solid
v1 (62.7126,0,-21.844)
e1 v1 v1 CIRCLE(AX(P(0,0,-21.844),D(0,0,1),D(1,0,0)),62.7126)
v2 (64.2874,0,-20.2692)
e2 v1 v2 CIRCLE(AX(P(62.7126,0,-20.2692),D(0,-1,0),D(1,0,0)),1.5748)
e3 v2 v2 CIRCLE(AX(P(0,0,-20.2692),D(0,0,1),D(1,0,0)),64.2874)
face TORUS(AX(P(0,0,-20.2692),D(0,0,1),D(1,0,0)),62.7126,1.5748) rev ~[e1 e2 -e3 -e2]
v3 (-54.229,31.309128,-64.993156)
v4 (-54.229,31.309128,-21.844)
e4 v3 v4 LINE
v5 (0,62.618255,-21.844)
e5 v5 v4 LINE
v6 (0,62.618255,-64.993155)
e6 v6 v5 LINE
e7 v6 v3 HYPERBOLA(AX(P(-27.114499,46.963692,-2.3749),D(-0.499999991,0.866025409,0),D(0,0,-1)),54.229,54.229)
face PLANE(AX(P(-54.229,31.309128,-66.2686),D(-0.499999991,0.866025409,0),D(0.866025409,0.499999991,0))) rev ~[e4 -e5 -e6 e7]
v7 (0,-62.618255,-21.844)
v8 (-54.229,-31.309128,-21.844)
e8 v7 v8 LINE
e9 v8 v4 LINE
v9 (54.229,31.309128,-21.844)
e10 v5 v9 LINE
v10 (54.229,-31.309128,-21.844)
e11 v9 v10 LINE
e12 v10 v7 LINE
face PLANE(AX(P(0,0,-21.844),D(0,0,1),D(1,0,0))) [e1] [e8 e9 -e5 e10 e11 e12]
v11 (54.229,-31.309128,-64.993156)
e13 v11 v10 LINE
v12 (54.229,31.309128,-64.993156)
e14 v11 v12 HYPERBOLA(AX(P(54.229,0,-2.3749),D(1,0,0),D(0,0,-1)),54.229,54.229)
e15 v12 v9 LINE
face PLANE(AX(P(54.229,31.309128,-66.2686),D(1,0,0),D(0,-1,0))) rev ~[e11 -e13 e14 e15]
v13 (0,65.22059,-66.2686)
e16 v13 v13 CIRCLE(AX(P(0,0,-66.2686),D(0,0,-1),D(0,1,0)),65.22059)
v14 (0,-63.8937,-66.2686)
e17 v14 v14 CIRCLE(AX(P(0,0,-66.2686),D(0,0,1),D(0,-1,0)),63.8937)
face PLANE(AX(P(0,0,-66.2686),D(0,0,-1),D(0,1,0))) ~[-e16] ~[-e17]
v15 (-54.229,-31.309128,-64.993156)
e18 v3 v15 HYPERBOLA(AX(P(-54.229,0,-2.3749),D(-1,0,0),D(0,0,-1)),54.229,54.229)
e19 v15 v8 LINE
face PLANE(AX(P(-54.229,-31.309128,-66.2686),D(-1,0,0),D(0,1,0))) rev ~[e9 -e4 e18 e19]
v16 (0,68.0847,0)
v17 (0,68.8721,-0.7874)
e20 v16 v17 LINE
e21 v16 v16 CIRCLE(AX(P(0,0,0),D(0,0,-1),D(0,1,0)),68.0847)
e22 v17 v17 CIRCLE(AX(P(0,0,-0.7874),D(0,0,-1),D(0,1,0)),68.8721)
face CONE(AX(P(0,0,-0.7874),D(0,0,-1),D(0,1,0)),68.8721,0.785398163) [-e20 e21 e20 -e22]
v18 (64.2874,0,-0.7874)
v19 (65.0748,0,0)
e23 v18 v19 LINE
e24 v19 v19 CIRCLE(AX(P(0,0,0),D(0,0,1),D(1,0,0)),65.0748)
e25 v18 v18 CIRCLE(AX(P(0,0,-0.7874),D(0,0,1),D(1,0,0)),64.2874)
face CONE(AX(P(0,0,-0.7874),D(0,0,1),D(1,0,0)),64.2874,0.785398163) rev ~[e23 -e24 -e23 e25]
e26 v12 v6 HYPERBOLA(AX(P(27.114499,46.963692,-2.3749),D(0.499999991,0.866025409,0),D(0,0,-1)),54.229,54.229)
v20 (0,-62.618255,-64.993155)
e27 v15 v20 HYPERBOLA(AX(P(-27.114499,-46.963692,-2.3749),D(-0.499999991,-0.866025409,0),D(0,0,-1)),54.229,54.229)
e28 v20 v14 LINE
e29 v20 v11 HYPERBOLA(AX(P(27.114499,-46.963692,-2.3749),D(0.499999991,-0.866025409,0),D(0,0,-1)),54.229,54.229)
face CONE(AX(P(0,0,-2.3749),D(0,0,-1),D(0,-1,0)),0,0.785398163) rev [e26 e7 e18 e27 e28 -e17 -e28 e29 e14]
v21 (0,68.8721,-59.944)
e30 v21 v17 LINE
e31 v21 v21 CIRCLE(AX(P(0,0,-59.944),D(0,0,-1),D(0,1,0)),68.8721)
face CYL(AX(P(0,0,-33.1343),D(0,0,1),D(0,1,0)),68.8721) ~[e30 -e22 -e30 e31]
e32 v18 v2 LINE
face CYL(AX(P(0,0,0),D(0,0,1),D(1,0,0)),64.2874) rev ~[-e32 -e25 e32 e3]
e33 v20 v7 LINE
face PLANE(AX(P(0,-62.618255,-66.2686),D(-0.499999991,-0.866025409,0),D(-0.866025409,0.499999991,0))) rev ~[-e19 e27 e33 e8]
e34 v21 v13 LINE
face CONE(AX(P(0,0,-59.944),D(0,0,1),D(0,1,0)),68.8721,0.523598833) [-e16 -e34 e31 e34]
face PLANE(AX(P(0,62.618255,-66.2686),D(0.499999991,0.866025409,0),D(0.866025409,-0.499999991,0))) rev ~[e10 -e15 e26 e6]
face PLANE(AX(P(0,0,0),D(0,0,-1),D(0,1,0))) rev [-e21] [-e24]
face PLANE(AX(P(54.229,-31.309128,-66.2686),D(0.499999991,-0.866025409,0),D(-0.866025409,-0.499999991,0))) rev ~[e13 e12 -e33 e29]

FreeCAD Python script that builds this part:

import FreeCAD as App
import Part
import Sketcher

V = App.Vector
Q = App.Units.Quantity


def edges_at(feature, points):
    """Names of the edges that pass closest to the given points."""
    edges = feature.Shape.Edges
    near = lambda p: min(range(len(edges)), key=lambda i: edges[i].distToShape(Part.Vertex(*p))[0])
    return sorted({f"Edge{near(p) + 1}" for p in points})


def add_polygon(sketch, points):
    """Adds a closed chain of lines whose ends are joined by coincident constraints."""
    first, n = sketch.GeometryCount, len(points)
    for a, b in zip(points, points[1:] + points[:1]):
        sketch.addGeometry(Part.LineSegment(App.Vector(*a, 0), App.Vector(*b, 0)), False)
    for i in range(n):
        sketch.addConstraint(Sketcher.Constraint("Coincident", first + i, 2, first + (i + 1) % n, 1))

doc = App.newDocument("Part")
params = doc.addObject("Spreadsheet::Sheet", "Params")
for row, (alias, value) in enumerate([
    ("sketch1_height", "2.609 in"),
    ("revolution_angle", "360 deg"),
    ("sketch2_diameter", "5.062 in"),
    ("pocket1_length", "0.86 in"),
    ("fillet_radius", "0.062 in"),
    ("chamfer_size", "0.031 in"),
    ("groove_angle", "360 deg"),
    ("chamfer2_size", "0.249 in"),
    ("chamfer2_size2", "3.65151 mm"),
], start=1):
    params.set(f"A{row}", alias)
    params.set(f"B{row}", "=" + value)
    params.setAlias(f"B{row}", alias)

body = doc.addObject("PartDesign::Body", "Body")

# Sketch on YZ plane
sketch1 = doc.addObject("Sketcher::SketchObject", "Sketch")
body.addObject(sketch1)
sketch1.AttachmentSupport = (doc.YZ_Plane, [""])
sketch1.MapMode = "FlatFace"
add_polygon(sketch1, [(54, 0), (54, -66), (69, -66), (69, 0)])  # lines 0-3
sketch1.addConstraint([
    Sketcher.Constraint("Vertical", 0),
    Sketcher.Constraint("Horizontal", 1),
    Sketcher.Constraint("Vertical", 2),
    Sketcher.Constraint("Horizontal", 3),
    Sketcher.Constraint("PointOnObject", 2, 2, -1),
    Sketcher.Constraint("DistanceY", 0, 2, 0, 1, Q("2.609 in")),
    Sketcher.Constraint("DistanceX", 1, 1, 1, 2, Q("0.5765 in")),
    Sketcher.Constraint("DistanceX", -1, 1, 0, 2, Q("2.135 in")),
])
sketch1.setExpression("Constraints[9]", "Params.sketch1_height")
revolution = doc.addObject("PartDesign::Revolution", "Revolution")
body.addObject(revolution)
revolution.Profile = sketch1
revolution.ReferenceAxis = (sketch1, ["V_Axis"])
revolution.setExpression("Angle", "Params.revolution_angle")

# Sketch on XY plane
sketch2 = doc.addObject("Sketcher::SketchObject", "Sketch001")
body.addObject(sketch2)
sketch2.AttachmentSupport = (doc.XY_Plane, [""])
sketch2.MapMode = "FlatFace"
sketch2.addGeometry(Part.Circle(V(0, 0, 0), V(0, 0, 1), 64), False)
sketch2.addConstraint([
    Sketcher.Constraint("Coincident", 0, 3, -1, 1),
    Sketcher.Constraint("Diameter", 0, Q("5.062 in")),
])
sketch2.setExpression("Constraints[1]", "Params.sketch2_diameter")
pocket1 = doc.addObject("PartDesign::Pocket", "Pocket")
body.addObject(pocket1)
pocket1.Profile = sketch2
pocket1.setExpression("Length", "Params.pocket1_length")

# Sketch on XY plane
sketch3 = doc.addObject("Sketcher::SketchObject", "Sketch002")
body.addObject(sketch3)
sketch3.AttachmentSupport = (doc.XY_Plane, [""])
sketch3.MapMode = "FlatFace"
sketch3.AttachmentOffset = App.Placement(V(0, 0, -2.609 * 25.4), App.Rotation())
add_polygon(sketch3, [(-54, -31), (-54, 31), (0, 63), (54, 31), (54, -31), (0, -63)])  # lines 0-5
sketch3.addConstraint([
    Sketcher.Constraint("Vertical", 0),
    Sketcher.Constraint("Vertical", 3),
    Sketcher.Constraint("Symmetric", 0, 2, 3, 2, -1, 1),
    Sketcher.Constraint("Symmetric", 1, 2, 4, 2, -1, 1),
    Sketcher.Constraint("PointOnObject", 1, 2, -2),
    Sketcher.Constraint("Parallel", 2, 5),
    Sketcher.Constraint("Horizontal", 0, 2, 2, 2),
    Sketcher.Constraint("Angle", 1, Q("29.999999 deg")),
    Sketcher.Constraint("DistanceX", 0, 2, 2, 2, Q("4.27 in")),
    Sketcher.Constraint("DistanceY", 0, 1, 0, 2, 62.618256),
])
pocket2 = doc.addObject("PartDesign::Pocket", "Pocket001")
body.addObject(pocket2)
pocket2.Profile = sketch3
pocket2.Type = "ThroughAll"
pocket2.Reversed = True
doc.recompute()

fillet = doc.addObject("PartDesign::Fillet", "Fillet")
body.addObject(fillet)
fillet.Base = (pocket2, edges_at(pocket2, [(-64.287, 0, -21.844)]))
fillet.setExpression("Radius", "Params.fillet_radius")
doc.recompute()

chamfer = doc.addObject("PartDesign::Chamfer", "Chamfer")
body.addObject(chamfer)
chamfer.Base = (fillet, edges_at(fillet, [(0, -68.872, 0), (-64.287, 0, 0)]))
chamfer.setExpression("Size", "Params.chamfer_size")

# Sketch on YZ plane
sketch4 = doc.addObject("Sketcher::SketchObject", "Sketch003")
body.addObject(sketch4)
sketch4.AttachmentSupport = (doc.YZ_Plane, [""])
sketch4.MapMode = "FlatFace"
add_polygon(sketch4, [(0, -2), (-64, -66), (0, -66)])  # lines 0-2
sketch4.addConstraint([
    Sketcher.Constraint("Horizontal", 1),
    Sketcher.Constraint("Vertical", 2),
    Sketcher.Constraint("PointOnObject", 1, 2, -2),
    Sketcher.Constraint("Equal", 1, 2),
    Sketcher.Constraint("DistanceX", 1, 1, 1, 2, Q("2.5155 in")),
    Sketcher.Constraint("DistanceY", 0, 2, -1, 1, Q("2.609 in")),
])
groove = doc.addObject("PartDesign::Groove", "Groove")
body.addObject(groove)
groove.Profile = sketch4
groove.ReferenceAxis = (sketch4, ["V_Axis"])
groove.setExpression("Angle", "Params.groove_angle")
doc.recompute()

chamfer2 = doc.addObject("PartDesign::Chamfer", "Chamfer001")
body.addObject(chamfer2)
chamfer2.Base = (groove, edges_at(groove, [(0, -68.872, -66.269)]))
chamfer2.ChamferType = "Two distances"
chamfer2.setExpression("Size", "Params.chamfer2_size")
chamfer2.setExpression("Size2", "Params.chamfer2_size2")

doc.recompute()
